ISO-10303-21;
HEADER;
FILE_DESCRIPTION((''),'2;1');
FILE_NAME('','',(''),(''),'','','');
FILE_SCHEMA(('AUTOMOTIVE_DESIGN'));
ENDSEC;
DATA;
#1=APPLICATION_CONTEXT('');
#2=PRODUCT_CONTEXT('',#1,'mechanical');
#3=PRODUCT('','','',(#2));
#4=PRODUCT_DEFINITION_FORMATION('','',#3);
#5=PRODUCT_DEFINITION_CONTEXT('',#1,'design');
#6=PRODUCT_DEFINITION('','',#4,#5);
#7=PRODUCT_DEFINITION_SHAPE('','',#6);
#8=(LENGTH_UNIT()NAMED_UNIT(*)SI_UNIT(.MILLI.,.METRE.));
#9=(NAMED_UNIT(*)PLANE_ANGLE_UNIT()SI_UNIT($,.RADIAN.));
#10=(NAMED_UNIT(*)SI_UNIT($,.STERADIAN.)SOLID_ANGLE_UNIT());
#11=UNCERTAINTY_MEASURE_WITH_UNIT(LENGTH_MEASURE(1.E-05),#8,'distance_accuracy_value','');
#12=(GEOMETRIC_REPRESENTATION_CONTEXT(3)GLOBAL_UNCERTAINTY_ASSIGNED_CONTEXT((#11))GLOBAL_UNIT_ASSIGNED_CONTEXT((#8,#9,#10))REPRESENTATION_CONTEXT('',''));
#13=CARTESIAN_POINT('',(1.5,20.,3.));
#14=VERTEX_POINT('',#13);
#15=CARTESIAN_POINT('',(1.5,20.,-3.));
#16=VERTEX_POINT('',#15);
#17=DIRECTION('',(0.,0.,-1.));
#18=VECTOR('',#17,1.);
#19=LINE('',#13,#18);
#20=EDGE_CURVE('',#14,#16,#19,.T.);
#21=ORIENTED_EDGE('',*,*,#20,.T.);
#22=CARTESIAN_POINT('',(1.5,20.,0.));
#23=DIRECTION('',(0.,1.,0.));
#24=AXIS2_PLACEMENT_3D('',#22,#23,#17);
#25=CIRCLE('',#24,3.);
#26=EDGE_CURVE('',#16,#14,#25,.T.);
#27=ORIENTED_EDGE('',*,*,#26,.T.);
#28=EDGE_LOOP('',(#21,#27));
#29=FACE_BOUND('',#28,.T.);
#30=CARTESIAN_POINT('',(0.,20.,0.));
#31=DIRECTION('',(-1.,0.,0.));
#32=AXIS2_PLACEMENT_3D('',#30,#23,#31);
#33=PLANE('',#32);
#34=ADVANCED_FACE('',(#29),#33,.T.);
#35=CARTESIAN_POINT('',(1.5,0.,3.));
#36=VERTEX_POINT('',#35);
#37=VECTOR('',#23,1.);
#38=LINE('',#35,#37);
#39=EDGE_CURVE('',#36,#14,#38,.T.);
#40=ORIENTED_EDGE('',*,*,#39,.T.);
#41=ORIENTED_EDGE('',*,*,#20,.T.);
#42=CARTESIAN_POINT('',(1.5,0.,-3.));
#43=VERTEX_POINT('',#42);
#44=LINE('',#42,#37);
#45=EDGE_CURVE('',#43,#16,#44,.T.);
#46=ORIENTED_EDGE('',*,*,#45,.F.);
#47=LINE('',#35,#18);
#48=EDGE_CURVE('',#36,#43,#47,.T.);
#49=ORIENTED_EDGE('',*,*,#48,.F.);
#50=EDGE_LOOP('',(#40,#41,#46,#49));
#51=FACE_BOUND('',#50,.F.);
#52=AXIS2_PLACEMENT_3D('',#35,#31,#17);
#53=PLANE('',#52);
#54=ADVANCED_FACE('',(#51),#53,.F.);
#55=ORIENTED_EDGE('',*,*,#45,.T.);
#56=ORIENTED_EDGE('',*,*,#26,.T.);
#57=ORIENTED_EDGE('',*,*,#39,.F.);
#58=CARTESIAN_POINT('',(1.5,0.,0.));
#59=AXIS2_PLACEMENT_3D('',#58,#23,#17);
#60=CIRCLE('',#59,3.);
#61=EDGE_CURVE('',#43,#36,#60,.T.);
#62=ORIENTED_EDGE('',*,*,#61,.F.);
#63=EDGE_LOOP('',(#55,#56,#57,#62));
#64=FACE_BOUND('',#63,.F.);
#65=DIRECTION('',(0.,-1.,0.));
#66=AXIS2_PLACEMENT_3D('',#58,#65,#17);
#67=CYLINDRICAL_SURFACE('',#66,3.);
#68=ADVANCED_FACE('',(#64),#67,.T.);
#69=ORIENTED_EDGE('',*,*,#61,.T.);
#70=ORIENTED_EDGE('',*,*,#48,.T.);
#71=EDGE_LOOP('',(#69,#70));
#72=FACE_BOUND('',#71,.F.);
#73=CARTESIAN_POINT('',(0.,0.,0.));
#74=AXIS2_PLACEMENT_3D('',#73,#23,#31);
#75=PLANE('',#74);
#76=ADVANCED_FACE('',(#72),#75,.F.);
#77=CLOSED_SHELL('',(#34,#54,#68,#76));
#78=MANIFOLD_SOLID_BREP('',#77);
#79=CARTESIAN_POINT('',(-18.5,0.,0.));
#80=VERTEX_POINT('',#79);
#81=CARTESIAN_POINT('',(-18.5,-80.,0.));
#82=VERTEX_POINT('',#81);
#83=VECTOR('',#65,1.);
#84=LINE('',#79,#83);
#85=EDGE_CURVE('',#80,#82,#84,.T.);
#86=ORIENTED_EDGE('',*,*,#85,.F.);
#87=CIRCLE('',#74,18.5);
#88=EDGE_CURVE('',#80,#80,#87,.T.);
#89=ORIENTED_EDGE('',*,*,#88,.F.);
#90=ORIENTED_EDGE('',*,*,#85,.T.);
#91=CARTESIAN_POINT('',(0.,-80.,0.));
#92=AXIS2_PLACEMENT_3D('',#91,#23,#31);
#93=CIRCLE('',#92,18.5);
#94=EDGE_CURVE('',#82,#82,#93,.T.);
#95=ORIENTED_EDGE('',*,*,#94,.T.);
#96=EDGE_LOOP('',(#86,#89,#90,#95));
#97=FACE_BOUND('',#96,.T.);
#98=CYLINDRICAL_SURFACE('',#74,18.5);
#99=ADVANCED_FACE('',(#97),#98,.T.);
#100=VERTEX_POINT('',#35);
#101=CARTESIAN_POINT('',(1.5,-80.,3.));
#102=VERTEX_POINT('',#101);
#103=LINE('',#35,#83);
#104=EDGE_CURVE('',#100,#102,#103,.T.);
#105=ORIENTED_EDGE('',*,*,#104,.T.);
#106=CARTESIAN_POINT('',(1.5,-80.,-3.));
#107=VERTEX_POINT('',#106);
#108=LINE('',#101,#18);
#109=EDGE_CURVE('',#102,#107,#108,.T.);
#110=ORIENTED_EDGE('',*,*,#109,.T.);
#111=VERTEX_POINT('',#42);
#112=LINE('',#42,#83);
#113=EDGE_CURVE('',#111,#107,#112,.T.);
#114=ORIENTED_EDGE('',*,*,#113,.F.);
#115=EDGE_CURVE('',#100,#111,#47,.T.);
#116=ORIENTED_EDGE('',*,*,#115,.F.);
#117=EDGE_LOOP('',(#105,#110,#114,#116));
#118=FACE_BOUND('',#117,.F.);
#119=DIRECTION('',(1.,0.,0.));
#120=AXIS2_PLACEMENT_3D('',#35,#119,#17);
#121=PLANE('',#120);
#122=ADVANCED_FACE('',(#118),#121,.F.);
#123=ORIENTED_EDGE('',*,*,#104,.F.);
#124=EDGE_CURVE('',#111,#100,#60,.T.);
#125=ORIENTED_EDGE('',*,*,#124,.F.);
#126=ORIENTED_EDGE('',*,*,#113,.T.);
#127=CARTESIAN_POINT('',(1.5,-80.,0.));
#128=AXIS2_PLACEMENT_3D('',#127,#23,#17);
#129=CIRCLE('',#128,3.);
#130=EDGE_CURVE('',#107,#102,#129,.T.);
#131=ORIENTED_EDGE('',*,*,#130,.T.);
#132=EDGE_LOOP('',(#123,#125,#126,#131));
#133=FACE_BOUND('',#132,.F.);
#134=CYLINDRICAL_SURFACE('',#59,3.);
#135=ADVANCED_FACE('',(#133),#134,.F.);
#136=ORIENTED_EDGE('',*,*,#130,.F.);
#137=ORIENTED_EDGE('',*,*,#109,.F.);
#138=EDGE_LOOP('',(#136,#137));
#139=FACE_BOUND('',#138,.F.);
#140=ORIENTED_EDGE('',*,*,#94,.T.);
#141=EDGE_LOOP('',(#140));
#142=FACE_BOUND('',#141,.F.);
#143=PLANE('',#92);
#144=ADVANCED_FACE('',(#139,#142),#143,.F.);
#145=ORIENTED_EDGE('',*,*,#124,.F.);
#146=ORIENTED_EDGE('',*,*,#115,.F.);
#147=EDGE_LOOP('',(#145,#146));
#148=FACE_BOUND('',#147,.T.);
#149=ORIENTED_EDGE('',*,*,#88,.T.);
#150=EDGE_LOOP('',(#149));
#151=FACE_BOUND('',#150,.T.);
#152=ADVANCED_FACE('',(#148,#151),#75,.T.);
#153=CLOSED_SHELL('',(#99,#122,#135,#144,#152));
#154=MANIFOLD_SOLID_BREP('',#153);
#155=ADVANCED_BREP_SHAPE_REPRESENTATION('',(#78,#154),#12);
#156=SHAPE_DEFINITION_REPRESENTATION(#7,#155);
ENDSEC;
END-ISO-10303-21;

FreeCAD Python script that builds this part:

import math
import FreeCAD as App
import Part
import Sketcher
Q = App.Units.Quantity

doc = App.newDocument("Part")
params = doc.addObject("Spreadsheet::Sheet", "Params")
for row, (alias, value) in enumerate([
    ("sketch1_radius", "3 mm"),
    ("pad1_length", "20 mm"),
    ("sketch2_diameter", "37 mm"),
    ("sketch2_radius", "3 mm"),
    ("pad2_length", "80 mm"),
], start=1):
    params.set(f"A{row}", alias)
    params.set(f"B{row}", "=" + value)
    params.setAlias(f"B{row}", alias)

body = doc.addObject("PartDesign::Body", "Body")
body.AllowCompound = True

# Sketch on XZ plane
sketch1 = body.newObject("Sketcher::SketchObject", "Sketch")
sketch1.AttachmentSupport = (doc.getObject("XZ_Plane"), [""])
sketch1.MapMode = "FlatFace"
sketch1.addGeometry(Part.LineSegment(App.Vector(1.5, 3, 0), App.Vector(1.5, -3, 0)), False)
sketch1.addGeometry(Part.ArcOfCircle(Part.Circle(App.Vector(1.5, 0, 0), App.Vector(0, 0, 1), 3), math.radians(90), math.radians(270)), False)
sketch1.addConstraint(Sketcher.Constraint("Coincident", 0, 1, 1, 1))
sketch1.addConstraint(Sketcher.Constraint("Coincident", 1, 2, 0, 2))
sketch1.addConstraint(Sketcher.Constraint("Vertical", 0))
sketch1.addConstraint(Sketcher.Constraint("PointOnObject", 1, 3, -1))
sketch1.addConstraint(Sketcher.Constraint("Vertical", 1, 3, 0, 1))
sketch1.addConstraint(Sketcher.Constraint("Radius", 1, Q("3 mm")))
sketch1.addConstraint(Sketcher.Constraint("DistanceX", -1, 1, 1, 3, Q("1.5 mm")))
sketch1.setExpression("Constraints[5]", "Params.sketch1_radius")
pad1 = body.newObject("PartDesign::Pad", "Pad")
pad1.Profile = sketch1
pad1.setExpression("Length", "Params.pad1_length")
pad1.Reversed = True

# Sketch on XZ plane
sketch2 = body.newObject("Sketcher::SketchObject", "Sketch001")
sketch2.AttachmentSupport = (doc.getObject("XZ_Plane"), [""])
sketch2.MapMode = "FlatFace"
sketch2.addGeometry(Part.Circle(App.Vector(0, 0, 0), App.Vector(0, 0, 1), 18.5), False)
sketch2.addGeometry(Part.ArcOfCircle(Part.Circle(App.Vector(1.5, 0, 0), App.Vector(0, 0, 1), 3), math.radians(90), math.radians(270)), False)
sketch2.addGeometry(Part.LineSegment(App.Vector(1.5, -3, 0), App.Vector(1.5, 3, 0)), False)
sketch2.addConstraint(Sketcher.Constraint("Coincident", 1, 1, 2, 2))
sketch2.addConstraint(Sketcher.Constraint("Coincident", 2, 1, 1, 2))
sketch2.addConstraint(Sketcher.Constraint("Vertical", 2))
sketch2.addConstraint(Sketcher.Constraint("Coincident", 0, 3, -1, 1))
sketch2.addConstraint(Sketcher.Constraint("PointOnObject", 1, 3, -1))
sketch2.addConstraint(Sketcher.Constraint("Diameter", 0, Q("37 mm")))
sketch2.addConstraint(Sketcher.Constraint("Radius", 1, Q("3 mm")))
sketch2.addConstraint(Sketcher.Constraint("DistanceX", -1, 1, 1, 3, Q("1.5 mm")))
sketch2.addConstraint(Sketcher.Constraint("DistanceX", -1, 1, 1, 1, Q("1.5 mm")))
sketch2.setExpression("Constraints[5]", "Params.sketch2_diameter")
sketch2.setExpression("Constraints[6]", "Params.sketch2_radius")
pad2 = body.newObject("PartDesign::Pad", "Pad001")
pad2.Profile = sketch2
pad2.setExpression("Length", "Params.pad2_length")

doc.recompute()
